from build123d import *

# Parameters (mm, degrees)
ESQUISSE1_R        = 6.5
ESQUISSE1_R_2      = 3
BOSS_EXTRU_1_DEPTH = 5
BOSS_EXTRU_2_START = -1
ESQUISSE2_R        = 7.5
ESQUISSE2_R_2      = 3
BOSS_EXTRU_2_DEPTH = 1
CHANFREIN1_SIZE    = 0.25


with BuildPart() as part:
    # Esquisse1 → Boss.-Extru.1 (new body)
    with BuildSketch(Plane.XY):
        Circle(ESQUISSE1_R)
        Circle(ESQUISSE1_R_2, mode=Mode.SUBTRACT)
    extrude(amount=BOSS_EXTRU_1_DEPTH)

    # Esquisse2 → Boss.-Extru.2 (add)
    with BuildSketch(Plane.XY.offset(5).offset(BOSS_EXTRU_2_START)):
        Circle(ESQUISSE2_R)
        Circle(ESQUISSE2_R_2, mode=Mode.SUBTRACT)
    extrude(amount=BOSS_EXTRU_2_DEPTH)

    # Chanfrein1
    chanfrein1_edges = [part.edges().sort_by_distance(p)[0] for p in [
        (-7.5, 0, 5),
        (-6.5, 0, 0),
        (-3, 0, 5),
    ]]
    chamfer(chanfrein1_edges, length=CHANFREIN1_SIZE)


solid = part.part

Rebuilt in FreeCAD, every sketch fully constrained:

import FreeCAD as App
import Part
import Sketcher
from FreeCAD import Vector


def edges_at(feature, points):
    """Names of the edges that pass closest to the given points."""
    edges = feature.Shape.Edges
    near = lambda p: min(range(len(edges)), key=lambda i: edges[i].distToShape(Part.Vertex(*p))[0])
    return sorted({f"Edge{near(p) + 1}" for p in points})

doc = App.newDocument("Part")
body = doc.addObject("PartDesign::Body", "Body")

sketch1 = doc.addObject("Sketcher::SketchObject", "Sketch")
body.addObject(sketch1)
sketch1.AttachmentSupport = (doc.XY_Plane, [""])
sketch1.MapMode = "FlatFace"
sketch1.addGeometry([
    Part.Circle(Vector(0, 0, 0), Vector(0, 0, 1), 6.5),
    Part.Circle(Vector(0, 0, 0), Vector(0, 0, 1), 3),
], False)
sketch1.addConstraint([
    Sketcher.Constraint("Coincident", 0, 3, -1, 1),
    Sketcher.Constraint("Coincident", 1, 3, -1, 1),
    Sketcher.Constraint("Diameter", 0, 13.0),
    Sketcher.Constraint("Diameter", 1, 6.0),
])
pad1 = doc.addObject("PartDesign::Pad", "Pad")
body.addObject(pad1)
pad1.Profile = sketch1
pad1.Length = 5

sketch2 = doc.addObject("Sketcher::SketchObject", "Sketch001")
body.addObject(sketch2)
sketch2.AttachmentSupport = (doc.XY_Plane, [""])
sketch2.MapMode = "FlatFace"
sketch2.AttachmentOffset = App.Placement(Vector(0, 0, 4), App.Rotation())
sketch2.addGeometry([
    Part.Circle(Vector(0, 0, 0), Vector(0, 0, 1), 7.5),
    Part.Circle(Vector(0, 0, 0), Vector(0, 0, 1), 3),
], False)
sketch2.addConstraint([
    Sketcher.Constraint("Coincident", 0, 3, -1, 1),
    Sketcher.Constraint("Coincident", 1, 3, -1, 1),
    Sketcher.Constraint("Diameter", 0, 15.0),
    Sketcher.Constraint("Diameter", 1, 6.0),
])
pad2 = doc.addObject("PartDesign::Pad", "Pad001")
body.addObject(pad2)
pad2.Profile = sketch2
pad2.Length = 1
doc.recompute()

chamfer = doc.addObject("PartDesign::Chamfer", "Chamfer")
body.addObject(chamfer)
chamfer.Base = (pad2, edges_at(pad2, [(-7.5, 0, 5), (-6.5, 0, 0), (-3, 0, 5)]))
chamfer.Size = 0.25

doc.recompute()
